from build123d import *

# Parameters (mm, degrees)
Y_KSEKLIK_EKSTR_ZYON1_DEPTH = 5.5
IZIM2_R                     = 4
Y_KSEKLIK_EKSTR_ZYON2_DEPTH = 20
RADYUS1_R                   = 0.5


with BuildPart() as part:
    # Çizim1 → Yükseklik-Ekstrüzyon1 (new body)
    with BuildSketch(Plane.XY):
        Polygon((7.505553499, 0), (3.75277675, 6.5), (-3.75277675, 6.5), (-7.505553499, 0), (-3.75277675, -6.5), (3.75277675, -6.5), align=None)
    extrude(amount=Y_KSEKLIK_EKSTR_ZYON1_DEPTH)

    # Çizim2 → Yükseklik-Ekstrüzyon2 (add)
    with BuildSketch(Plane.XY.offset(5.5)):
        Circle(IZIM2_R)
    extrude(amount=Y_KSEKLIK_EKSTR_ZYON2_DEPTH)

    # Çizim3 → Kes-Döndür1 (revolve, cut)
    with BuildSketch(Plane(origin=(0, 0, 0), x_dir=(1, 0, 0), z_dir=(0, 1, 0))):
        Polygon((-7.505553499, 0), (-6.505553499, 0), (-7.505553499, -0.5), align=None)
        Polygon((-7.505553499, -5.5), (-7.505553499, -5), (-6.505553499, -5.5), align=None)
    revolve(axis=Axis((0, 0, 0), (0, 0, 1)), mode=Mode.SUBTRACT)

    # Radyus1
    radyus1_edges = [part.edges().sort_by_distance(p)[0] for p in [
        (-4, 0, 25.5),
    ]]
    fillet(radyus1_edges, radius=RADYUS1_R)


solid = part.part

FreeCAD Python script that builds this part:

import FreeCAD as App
import Part
import Sketcher

V = App.Vector
Q = App.Units.Quantity


def edges_at(feature, points):
    """Names of the edges that pass closest to the given points."""
    edges = feature.Shape.Edges
    near = lambda p: min(range(len(edges)), key=lambda i: edges[i].distToShape(Part.Vertex(*p))[0])
    return sorted({f"Edge{near(p) + 1}" for p in points})


def add_polygon(sketch, points):
    """Adds a closed chain of lines whose ends are joined by coincident constraints."""
    first, n = sketch.GeometryCount, len(points)
    for a, b in zip(points, points[1:] + points[:1]):
        sketch.addGeometry(Part.LineSegment(App.Vector(*a, 0), App.Vector(*b, 0)), False)
    for i in range(n):
        sketch.addConstraint(Sketcher.Constraint("Coincident", first + i, 2, first + (i + 1) % n, 1))

doc = App.newDocument("Part")
body = doc.addObject("PartDesign::Body", "Body")

# Sketch on XY plane
sketch1 = body.newObject("Sketcher::SketchObject", "Sketch")
sketch1.AttachmentSupport = (doc.getObject("XY_Plane"), [""])
sketch1.MapMode = "FlatFace"
add_polygon(sketch1, [(8, 0), (4, 6), (-4, 6), (-8, 0), (-4, -6), (4, -6)])  # lines 0-5
sketch1.addConstraint([
    Sketcher.Constraint("Horizontal", 1),
    Sketcher.Constraint("Horizontal", 4),
    Sketcher.Constraint("Symmetric", 0, 2, 3, 2, -1, 1),
    Sketcher.Constraint("Symmetric", 2, 2, 5, 2, -1, 1),
    Sketcher.Constraint("PointOnObject", 2, 2, -1),
    Sketcher.Constraint("Parallel", 2, 5),
    Sketcher.Constraint("Vertical", 1, 2, 3, 2),
    Sketcher.Constraint("Angle", 0, Q("120 deg")),
    Sketcher.Constraint("DistanceY", 3, 2, 1, 2, 13.0),
    Sketcher.Constraint("DistanceX", 1, 2, 1, 1, 7.505554),
])
pad1 = body.newObject("PartDesign::Pad", "Pad")
pad1.Profile = sketch1
pad1.Length = 5.5

# Sketch on XY plane
sketch2 = body.newObject("Sketcher::SketchObject", "Sketch001")
sketch2.AttachmentSupport = (doc.getObject("XY_Plane"), [""])
sketch2.MapMode = "FlatFace"
sketch2.AttachmentOffset = App.Placement(V(0, 0, 5.5), App.Rotation())
sketch2.addGeometry(Part.Circle(V(0, 0, 0), V(0, 0, 1), 4), False)
sketch2.addConstraint([
    Sketcher.Constraint("Coincident", 0, 3, -1, 1),
    Sketcher.Constraint("Diameter", 0, 8.0),
])
pad2 = body.newObject("PartDesign::Pad", "Pad001")
pad2.Profile = sketch2
pad2.Length = 20

# Sketch on XZ plane
sketch3 = body.newObject("Sketcher::SketchObject", "Sketch002")
sketch3.AttachmentSupport = (doc.getObject("XZ_Plane"), [""])
sketch3.MapMode = "FlatFace"
add_polygon(sketch3, [(-6.5, 0), (-7.5, 0), (-7.5, 0.5)])  # lines 0-2
add_polygon(sketch3, [(-7.5, 5), (-7.5, 5.5), (-6.5, 5.5)])  # lines 3-5
sketch3.addConstraint([
    Sketcher.Constraint("Horizontal", 0),
    Sketcher.Constraint("Vertical", 1),
    Sketcher.Constraint("Vertical", 3),
    Sketcher.Constraint("Horizontal", 4),
    Sketcher.Constraint("PointOnObject", 0, 2, -1),
    Sketcher.Constraint("Vertical", 1, 2, 3, 2),
    Sketcher.Constraint("Vertical", 2, 2, 4, 2),
    Sketcher.Constraint("Equal", 1, 3),
    Sketcher.Constraint("DistanceX", 0, 2, 0, 1, 1.0),
    Sketcher.Constraint("DistanceY", 1, 1, 1, 2, 0.5),
    Sketcher.Constraint("DistanceY", -1, 1, 5, 2, 5.0),
    Sketcher.Constraint("DistanceX", 0, 2, -1, 1, 7.505553),
])
groove = body.newObject("PartDesign::Groove", "Groove")
groove.Profile = sketch3
groove.ReferenceAxis = (sketch3, ["V_Axis"])
groove.Angle = 360
doc.recompute()

fillet = body.newObject("PartDesign::Fillet", "Fillet")
fillet.Base = (groove, edges_at(groove, [(-4, 0, 25.5)]))
fillet.Radius = 0.5

doc.recompute()
